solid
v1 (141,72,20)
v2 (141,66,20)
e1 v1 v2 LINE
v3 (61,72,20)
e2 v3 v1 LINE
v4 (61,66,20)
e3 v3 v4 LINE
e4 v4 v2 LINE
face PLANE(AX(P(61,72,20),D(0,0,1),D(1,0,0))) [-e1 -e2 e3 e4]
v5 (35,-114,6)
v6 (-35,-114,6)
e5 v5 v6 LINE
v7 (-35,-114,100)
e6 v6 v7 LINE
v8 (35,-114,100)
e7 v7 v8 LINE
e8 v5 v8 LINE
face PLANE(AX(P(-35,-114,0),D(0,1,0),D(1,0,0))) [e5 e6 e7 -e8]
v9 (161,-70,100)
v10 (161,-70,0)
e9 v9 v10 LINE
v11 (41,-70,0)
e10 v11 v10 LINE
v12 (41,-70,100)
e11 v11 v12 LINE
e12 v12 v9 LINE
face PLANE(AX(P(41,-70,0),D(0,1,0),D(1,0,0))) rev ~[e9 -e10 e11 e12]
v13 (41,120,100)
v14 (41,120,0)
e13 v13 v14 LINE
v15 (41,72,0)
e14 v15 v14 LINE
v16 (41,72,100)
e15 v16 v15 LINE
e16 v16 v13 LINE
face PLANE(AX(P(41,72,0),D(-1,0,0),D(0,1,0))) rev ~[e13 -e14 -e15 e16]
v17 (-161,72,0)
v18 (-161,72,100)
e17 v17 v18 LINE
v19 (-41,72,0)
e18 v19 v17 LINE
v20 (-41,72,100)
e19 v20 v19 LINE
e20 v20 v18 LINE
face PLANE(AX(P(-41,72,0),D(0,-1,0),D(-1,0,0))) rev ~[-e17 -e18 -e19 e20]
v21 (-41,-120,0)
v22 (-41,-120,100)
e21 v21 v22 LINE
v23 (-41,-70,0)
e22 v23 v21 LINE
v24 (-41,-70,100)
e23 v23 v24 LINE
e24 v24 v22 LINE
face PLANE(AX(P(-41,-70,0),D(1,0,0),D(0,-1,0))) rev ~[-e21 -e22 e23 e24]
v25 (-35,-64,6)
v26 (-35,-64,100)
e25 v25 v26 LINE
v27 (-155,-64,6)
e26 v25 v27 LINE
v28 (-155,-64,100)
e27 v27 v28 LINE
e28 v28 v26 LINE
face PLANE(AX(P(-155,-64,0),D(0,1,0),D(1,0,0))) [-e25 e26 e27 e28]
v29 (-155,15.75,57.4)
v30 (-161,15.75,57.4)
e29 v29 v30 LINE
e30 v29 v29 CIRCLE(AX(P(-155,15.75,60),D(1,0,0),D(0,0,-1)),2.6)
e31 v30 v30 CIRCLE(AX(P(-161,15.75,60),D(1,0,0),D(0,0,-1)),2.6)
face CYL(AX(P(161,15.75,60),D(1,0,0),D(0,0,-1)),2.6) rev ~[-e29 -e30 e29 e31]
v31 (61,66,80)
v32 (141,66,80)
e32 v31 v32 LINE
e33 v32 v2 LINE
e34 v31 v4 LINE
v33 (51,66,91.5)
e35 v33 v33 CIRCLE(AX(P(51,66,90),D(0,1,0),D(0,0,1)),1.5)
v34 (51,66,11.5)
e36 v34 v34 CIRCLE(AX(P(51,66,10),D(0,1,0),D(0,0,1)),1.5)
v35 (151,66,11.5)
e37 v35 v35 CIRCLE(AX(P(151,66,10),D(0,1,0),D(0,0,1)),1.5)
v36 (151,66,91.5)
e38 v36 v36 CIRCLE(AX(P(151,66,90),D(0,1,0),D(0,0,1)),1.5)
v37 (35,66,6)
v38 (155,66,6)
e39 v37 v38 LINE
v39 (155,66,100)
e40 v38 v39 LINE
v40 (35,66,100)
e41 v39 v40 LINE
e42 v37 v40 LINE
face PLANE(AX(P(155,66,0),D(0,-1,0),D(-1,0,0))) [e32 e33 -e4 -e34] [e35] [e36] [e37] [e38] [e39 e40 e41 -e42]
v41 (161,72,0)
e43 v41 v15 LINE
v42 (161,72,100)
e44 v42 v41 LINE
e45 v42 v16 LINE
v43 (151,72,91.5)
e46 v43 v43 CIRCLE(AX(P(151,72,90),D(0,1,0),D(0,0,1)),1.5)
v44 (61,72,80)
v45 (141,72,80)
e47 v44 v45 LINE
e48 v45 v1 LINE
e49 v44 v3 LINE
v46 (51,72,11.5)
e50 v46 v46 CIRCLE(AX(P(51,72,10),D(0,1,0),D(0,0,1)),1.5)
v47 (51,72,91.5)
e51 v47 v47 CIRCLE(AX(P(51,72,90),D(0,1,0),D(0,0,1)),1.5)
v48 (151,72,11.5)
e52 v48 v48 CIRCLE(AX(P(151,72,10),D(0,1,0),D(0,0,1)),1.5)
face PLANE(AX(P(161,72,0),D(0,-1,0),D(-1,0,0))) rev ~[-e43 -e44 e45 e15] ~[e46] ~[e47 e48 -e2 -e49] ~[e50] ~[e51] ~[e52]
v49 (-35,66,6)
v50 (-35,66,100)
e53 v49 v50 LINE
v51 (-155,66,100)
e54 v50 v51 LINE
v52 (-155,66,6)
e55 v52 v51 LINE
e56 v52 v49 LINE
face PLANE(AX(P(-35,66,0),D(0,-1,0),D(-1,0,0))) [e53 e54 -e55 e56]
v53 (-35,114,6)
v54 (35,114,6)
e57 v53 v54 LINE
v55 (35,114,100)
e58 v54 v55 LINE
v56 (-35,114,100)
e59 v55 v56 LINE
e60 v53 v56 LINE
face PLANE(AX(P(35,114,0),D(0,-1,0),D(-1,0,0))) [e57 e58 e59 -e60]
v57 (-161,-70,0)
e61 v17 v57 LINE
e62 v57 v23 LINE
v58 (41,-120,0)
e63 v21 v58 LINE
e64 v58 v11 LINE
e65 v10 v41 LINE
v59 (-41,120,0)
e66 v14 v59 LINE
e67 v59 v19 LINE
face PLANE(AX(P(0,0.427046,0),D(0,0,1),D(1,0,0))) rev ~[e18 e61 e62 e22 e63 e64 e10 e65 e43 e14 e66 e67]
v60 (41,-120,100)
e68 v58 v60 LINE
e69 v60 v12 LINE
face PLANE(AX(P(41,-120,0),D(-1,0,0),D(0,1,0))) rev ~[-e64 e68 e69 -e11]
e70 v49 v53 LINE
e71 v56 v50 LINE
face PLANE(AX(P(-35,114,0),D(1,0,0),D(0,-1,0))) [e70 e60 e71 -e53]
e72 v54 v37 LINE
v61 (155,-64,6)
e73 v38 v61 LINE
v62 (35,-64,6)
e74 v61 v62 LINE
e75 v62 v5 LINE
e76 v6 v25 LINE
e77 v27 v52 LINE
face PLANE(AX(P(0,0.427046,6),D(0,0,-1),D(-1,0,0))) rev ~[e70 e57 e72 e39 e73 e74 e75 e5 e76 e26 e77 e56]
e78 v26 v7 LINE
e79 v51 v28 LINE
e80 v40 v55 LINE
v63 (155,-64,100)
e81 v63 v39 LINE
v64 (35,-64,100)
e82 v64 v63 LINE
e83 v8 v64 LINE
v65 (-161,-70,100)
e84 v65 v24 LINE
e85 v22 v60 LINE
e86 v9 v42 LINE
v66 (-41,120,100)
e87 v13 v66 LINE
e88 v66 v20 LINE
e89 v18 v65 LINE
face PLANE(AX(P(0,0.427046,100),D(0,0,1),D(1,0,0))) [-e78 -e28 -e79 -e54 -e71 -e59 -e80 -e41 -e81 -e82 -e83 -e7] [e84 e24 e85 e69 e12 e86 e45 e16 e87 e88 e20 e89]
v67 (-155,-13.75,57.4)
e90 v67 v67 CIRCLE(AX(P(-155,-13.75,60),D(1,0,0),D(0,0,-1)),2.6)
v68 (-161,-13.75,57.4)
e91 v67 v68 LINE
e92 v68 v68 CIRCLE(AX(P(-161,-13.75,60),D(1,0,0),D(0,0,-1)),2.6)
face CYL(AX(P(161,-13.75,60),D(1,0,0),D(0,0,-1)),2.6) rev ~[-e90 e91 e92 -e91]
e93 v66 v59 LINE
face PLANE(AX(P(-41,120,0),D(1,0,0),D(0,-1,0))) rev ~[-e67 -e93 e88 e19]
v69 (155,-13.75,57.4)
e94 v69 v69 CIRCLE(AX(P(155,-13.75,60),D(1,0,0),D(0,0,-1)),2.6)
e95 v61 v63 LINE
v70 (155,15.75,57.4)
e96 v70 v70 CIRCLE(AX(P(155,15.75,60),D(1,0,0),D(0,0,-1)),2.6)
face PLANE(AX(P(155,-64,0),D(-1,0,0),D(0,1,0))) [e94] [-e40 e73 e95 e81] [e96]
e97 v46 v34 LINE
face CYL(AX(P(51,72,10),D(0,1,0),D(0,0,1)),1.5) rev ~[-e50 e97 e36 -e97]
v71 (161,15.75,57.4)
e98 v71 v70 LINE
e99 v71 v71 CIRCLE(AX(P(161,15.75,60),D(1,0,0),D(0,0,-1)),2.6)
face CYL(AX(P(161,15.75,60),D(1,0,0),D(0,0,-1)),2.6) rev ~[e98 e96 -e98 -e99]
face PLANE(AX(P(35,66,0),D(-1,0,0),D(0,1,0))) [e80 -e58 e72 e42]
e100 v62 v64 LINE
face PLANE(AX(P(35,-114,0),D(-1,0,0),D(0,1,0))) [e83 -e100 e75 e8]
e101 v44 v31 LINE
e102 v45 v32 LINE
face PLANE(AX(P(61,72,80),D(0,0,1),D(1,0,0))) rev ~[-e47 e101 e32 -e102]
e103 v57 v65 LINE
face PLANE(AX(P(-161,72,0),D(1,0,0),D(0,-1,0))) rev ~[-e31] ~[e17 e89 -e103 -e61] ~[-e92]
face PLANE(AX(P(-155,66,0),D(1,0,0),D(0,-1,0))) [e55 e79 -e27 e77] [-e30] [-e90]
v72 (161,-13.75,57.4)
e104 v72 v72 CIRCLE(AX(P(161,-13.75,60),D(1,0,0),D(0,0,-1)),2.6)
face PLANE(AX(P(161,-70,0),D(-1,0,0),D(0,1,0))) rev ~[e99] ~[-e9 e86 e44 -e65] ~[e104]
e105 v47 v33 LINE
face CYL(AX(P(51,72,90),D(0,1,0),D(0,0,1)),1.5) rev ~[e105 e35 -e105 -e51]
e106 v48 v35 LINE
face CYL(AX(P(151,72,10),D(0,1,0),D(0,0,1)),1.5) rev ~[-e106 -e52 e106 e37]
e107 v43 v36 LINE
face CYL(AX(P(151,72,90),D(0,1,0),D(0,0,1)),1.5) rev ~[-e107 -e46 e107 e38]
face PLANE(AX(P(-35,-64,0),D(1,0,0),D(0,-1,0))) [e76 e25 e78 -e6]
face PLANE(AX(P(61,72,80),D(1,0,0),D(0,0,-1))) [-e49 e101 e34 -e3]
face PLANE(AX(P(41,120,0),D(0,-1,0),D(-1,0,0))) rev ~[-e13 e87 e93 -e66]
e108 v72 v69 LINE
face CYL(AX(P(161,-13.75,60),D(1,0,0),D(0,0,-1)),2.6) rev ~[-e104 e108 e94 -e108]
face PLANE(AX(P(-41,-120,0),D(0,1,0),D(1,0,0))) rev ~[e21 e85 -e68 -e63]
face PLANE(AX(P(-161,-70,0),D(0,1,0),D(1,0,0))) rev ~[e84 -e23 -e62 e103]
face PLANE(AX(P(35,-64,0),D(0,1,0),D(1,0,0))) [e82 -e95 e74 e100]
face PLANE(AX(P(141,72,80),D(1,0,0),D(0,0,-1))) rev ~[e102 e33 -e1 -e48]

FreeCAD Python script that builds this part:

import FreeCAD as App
import Part
import Sketcher
from FreeCAD import Vector

doc = App.newDocument("Part")
params = doc.addObject("Spreadsheet::Sheet", "Params")
for row, (alias, value) in enumerate([
    ("sketch1_width", "120 mm"),
    ("sketch1_width2", "82 mm"),
    ("sketch1_width3", "70 mm"),
    ("sketch1_height", "142 mm"),
    ("sketch1_height2", "50 mm"),
    ("pad1_length", "100 mm"),
    ("sketch2_width", "82 mm"),
    ("sketch2_width2", "120 mm"),
    ("sketch2_height", "48 mm"),
    ("sketch2_height2", "142 mm"),
    ("sketch2_height3", "50 mm"),
    ("pad2_length", "6 mm"),
    ("sketch3_diameter", "3 mm"),
    ("sketch3_width", "80 mm"),
    ("sketch3_height", "60 mm"),
    ("pocket1_length", "6 mm"),
    ("sketch4_diameter", "5.2 mm"),
], start=1):
    params.set(f"A{row}", alias)
    params.set(f"B{row}", "=" + value)
    params.setAlias(f"B{row}", alias)

body = doc.addObject("PartDesign::Body", "Body")

sketch1 = body.newObject("Sketcher::SketchObject", "Sketch")
sketch1.AttachmentSupport = (doc.getObject("XY_Plane"), [""])
sketch1.MapMode = "FlatFace"
sketch1.addGeometry(Part.LineSegment(Vector(-41, 72, 0), Vector(-161, 72, 0)), False)
sketch1.addGeometry(Part.LineSegment(Vector(-161, 72, 0), Vector(-161, -70, 0)), False)
sketch1.addGeometry(Part.LineSegment(Vector(-161, -70, 0), Vector(-41, -70, 0)), False)
sketch1.addGeometry(Part.LineSegment(Vector(-41, -70, 0), Vector(-41, -120, 0)), False)
sketch1.addGeometry(Part.LineSegment(Vector(-41, -120, 0), Vector(41, -120, 0)), False)
sketch1.addGeometry(Part.LineSegment(Vector(41, -120, 0), Vector(41, -70, 0)), False)
sketch1.addGeometry(Part.LineSegment(Vector(41, -70, 0), Vector(161, -70, 0)), False)
sketch1.addGeometry(Part.LineSegment(Vector(161, -70, 0), Vector(161, 72, 0)), False)
sketch1.addGeometry(Part.LineSegment(Vector(161, 72, 0), Vector(41, 72, 0)), False)
sketch1.addGeometry(Part.LineSegment(Vector(41, 72, 0), Vector(41, 120, 0)), False)
sketch1.addGeometry(Part.LineSegment(Vector(41, 120, 0), Vector(-41, 120, 0)), False)
sketch1.addGeometry(Part.LineSegment(Vector(-41, 120, 0), Vector(-41, 72, 0)), False)
sketch1.addGeometry(Part.LineSegment(Vector(35, 66, 0), Vector(155, 66, 0)), False)
sketch1.addGeometry(Part.LineSegment(Vector(155, 66, 0), Vector(155, -64, 0)), False)
sketch1.addGeometry(Part.LineSegment(Vector(155, -64, 0), Vector(35, -64, 0)), False)
sketch1.addGeometry(Part.LineSegment(Vector(35, -64, 0), Vector(35, -114, 0)), False)
sketch1.addGeometry(Part.LineSegment(Vector(35, -114, 0), Vector(-35, -114, 0)), False)
sketch1.addGeometry(Part.LineSegment(Vector(-35, -114, 0), Vector(-35, -64, 0)), False)
sketch1.addGeometry(Part.LineSegment(Vector(-35, -64, 0), Vector(-155, -64, 0)), False)
sketch1.addGeometry(Part.LineSegment(Vector(-155, -64, 0), Vector(-155, 66, 0)), False)
sketch1.addGeometry(Part.LineSegment(Vector(-155, 66, 0), Vector(-35, 66, 0)), False)
sketch1.addGeometry(Part.LineSegment(Vector(-35, 66, 0), Vector(-35, 114, 0)), False)
sketch1.addGeometry(Part.LineSegment(Vector(-35, 114, 0), Vector(35, 114, 0)), False)
sketch1.addGeometry(Part.LineSegment(Vector(35, 114, 0), Vector(35, 66, 0)), False)
sketch1.addConstraint(Sketcher.Constraint("Coincident", 0, 2, 1, 1))
sketch1.addConstraint(Sketcher.Constraint("Coincident", 1, 2, 2, 1))
sketch1.addConstraint(Sketcher.Constraint("Coincident", 2, 2, 3, 1))
sketch1.addConstraint(Sketcher.Constraint("Coincident", 3, 2, 4, 1))
sketch1.addConstraint(Sketcher.Constraint("Coincident", 4, 2, 5, 1))
sketch1.addConstraint(Sketcher.Constraint("Coincident", 5, 2, 6, 1))
sketch1.addConstraint(Sketcher.Constraint("Coincident", 6, 2, 7, 1))
sketch1.addConstraint(Sketcher.Constraint("Coincident", 7, 2, 8, 1))
sketch1.addConstraint(Sketcher.Constraint("Coincident", 8, 2, 9, 1))
sketch1.addConstraint(Sketcher.Constraint("Coincident", 9, 2, 10, 1))
sketch1.addConstraint(Sketcher.Constraint("Coincident", 10, 2, 11, 1))
sketch1.addConstraint(Sketcher.Constraint("Coincident", 11, 2, 0, 1))
sketch1.addConstraint(Sketcher.Constraint("Coincident", 12, 2, 13, 1))
sketch1.addConstraint(Sketcher.Constraint("Coincident", 13, 2, 14, 1))
sketch1.addConstraint(Sketcher.Constraint("Coincident", 14, 2, 15, 1))
sketch1.addConstraint(Sketcher.Constraint("Coincident", 15, 2, 16, 1))
sketch1.addConstraint(Sketcher.Constraint("Coincident", 16, 2, 17, 1))
sketch1.addConstraint(Sketcher.Constraint("Coincident", 17, 2, 18, 1))
sketch1.addConstraint(Sketcher.Constraint("Coincident", 18, 2, 19, 1))
sketch1.addConstraint(Sketcher.Constraint("Coincident", 19, 2, 20, 1))
sketch1.addConstraint(Sketcher.Constraint("Coincident", 20, 2, 21, 1))
sketch1.addConstraint(Sketcher.Constraint("Coincident", 21, 2, 22, 1))
sketch1.addConstraint(Sketcher.Constraint("Coincident", 22, 2, 23, 1))
sketch1.addConstraint(Sketcher.Constraint("Coincident", 23, 2, 12, 1))
sketch1.addConstraint(Sketcher.Constraint("Horizontal", 0))
sketch1.addConstraint(Sketcher.Constraint("Vertical", 1))
sketch1.addConstraint(Sketcher.Constraint("Horizontal", 2))
sketch1.addConstraint(Sketcher.Constraint("Vertical", 3))
sketch1.addConstraint(Sketcher.Constraint("Horizontal", 4))
sketch1.addConstraint(Sketcher.Constraint("Vertical", 5))
sketch1.addConstraint(Sketcher.Constraint("Horizontal", 6))
sketch1.addConstraint(Sketcher.Constraint("Vertical", 7))
sketch1.addConstraint(Sketcher.Constraint("Horizontal", 8))
sketch1.addConstraint(Sketcher.Constraint("Vertical", 9))
sketch1.addConstraint(Sketcher.Constraint("Horizontal", 10))
sketch1.addConstraint(Sketcher.Constraint("Vertical", 11))
sketch1.addConstraint(Sketcher.Constraint("Horizontal", 12))
sketch1.addConstraint(Sketcher.Constraint("Vertical", 13))
sketch1.addConstraint(Sketcher.Constraint("Horizontal", 14))
sketch1.addConstraint(Sketcher.Constraint("Vertical", 15))
sketch1.addConstraint(Sketcher.Constraint("Horizontal", 16))
sketch1.addConstraint(Sketcher.Constraint("Vertical", 17))
sketch1.addConstraint(Sketcher.Constraint("Horizontal", 18))
sketch1.addConstraint(Sketcher.Constraint("Vertical", 19))
sketch1.addConstraint(Sketcher.Constraint("Horizontal", 20))
sketch1.addConstraint(Sketcher.Constraint("Vertical", 21))
sketch1.addConstraint(Sketcher.Constraint("Horizontal", 22))
sketch1.addConstraint(Sketcher.Constraint("Vertical", 23))
sketch1.addConstraint(Sketcher.Constraint("Symmetric", 3, 2, 9, 2, -1, 1))
sketch1.addConstraint(Sketcher.Constraint("Symmetric", 15, 2, 21, 2, -1, 1))
sketch1.addConstraint(Sketcher.Constraint("Symmetric", 2, 2, 5, 2, -2))
sketch1.addConstraint(Sketcher.Constraint("Symmetric", 0, 2, 7, 2, -2))
sketch1.addConstraint(Sketcher.Constraint("Symmetric", 14, 2, 17, 2, -2))
sketch1.addConstraint(Sketcher.Constraint("Symmetric", 12, 2, 19, 2, -2))
sketch1.addConstraint(Sketcher.Constraint("Vertical", 3, 2, 10, 2))
sketch1.addConstraint(Sketcher.Constraint("Vertical", 15, 2, 22, 2))
sketch1.addConstraint(Sketcher.Constraint("Equal", 8, 12))
sketch1.addConstraint(Sketcher.Constraint("Equal", 5, 15))
sketch1.addConstraint(Sketcher.Constraint("Equal", 11, 21))
sketch1.addConstraint(Sketcher.Constraint("DistanceX", 0, 2, 0, 1, 120.0))
sketch1.addConstraint(Sketcher.Constraint("DistanceX", 4, 1, 4, 2, 82.0))
sketch1.addConstraint(Sketcher.Constraint("DistanceX", 16, 2, 16, 1, 70.0))
sketch1.addConstraint(Sketcher.Constraint("DistanceY", 1, 2, 1, 1, 142.0))
sketch1.addConstraint(Sketcher.Constraint("DistanceY", 3, 2, 3, 1, 50.0))
sketch1.addConstraint(Sketcher.Constraint("DistanceY", 9, 1, 9, 2, 48.0))
sketch1.addConstraint(Sketcher.Constraint("DistanceY", 13, 2, 13, 1, 130.0))
sketch1.setExpression("Constraints[59]", "Params.sketch1_width")
sketch1.setExpression("Constraints[60]", "Params.sketch1_width2")
sketch1.setExpression("Constraints[61]", "Params.sketch1_width3")
sketch1.setExpression("Constraints[62]", "Params.sketch1_height")
sketch1.setExpression("Constraints[63]", "Params.sketch1_height2")
pad1 = body.newObject("PartDesign::Pad", "Pad")
pad1.Profile = sketch1
pad1.setExpression("Length", "Params.pad1_length")

sketch2 = body.newObject("Sketcher::SketchObject", "Sketch001")
sketch2.AttachmentSupport = (doc.getObject("XY_Plane"), [""])
sketch2.MapMode = "FlatFace"
sketch2.addGeometry(Part.LineSegment(Vector(-41, 72, 0), Vector(-41, 120, 0)), False)
sketch2.addGeometry(Part.LineSegment(Vector(-41, 120, 0), Vector(41, 120, 0)), False)
sketch2.addGeometry(Part.LineSegment(Vector(41, 120, 0), Vector(41, 72, 0)), False)
sketch2.addGeometry(Part.LineSegment(Vector(41, 72, 0), Vector(161, 72, 0)), False)
sketch2.addGeometry(Part.LineSegment(Vector(161, 72, 0), Vector(161, -70, 0)), False)
sketch2.addGeometry(Part.LineSegment(Vector(161, -70, 0), Vector(41, -70, 0)), False)
sketch2.addGeometry(Part.LineSegment(Vector(41, -70, 0), Vector(41, -120, 0)), False)
sketch2.addGeometry(Part.LineSegment(Vector(41, -120, 0), Vector(-41, -120, 0)), False)
sketch2.addGeometry(Part.LineSegment(Vector(-41, -120, 0), Vector(-41, -70, 0)), False)
sketch2.addGeometry(Part.LineSegment(Vector(-41, -70, 0), Vector(-161, -70, 0)), False)
sketch2.addGeometry(Part.LineSegment(Vector(-161, -70, 0), Vector(-161, 72, 0)), False)
sketch2.addGeometry(Part.LineSegment(Vector(-161, 72, 0), Vector(-41, 72, 0)), False)
sketch2.addConstraint(Sketcher.Constraint("Coincident", 0, 2, 1, 1))
sketch2.addConstraint(Sketcher.Constraint("Coincident", 1, 2, 2, 1))
sketch2.addConstraint(Sketcher.Constraint("Coincident", 2, 2, 3, 1))
sketch2.addConstraint(Sketcher.Constraint("Coincident", 3, 2, 4, 1))
sketch2.addConstraint(Sketcher.Constraint("Coincident", 4, 2, 5, 1))
sketch2.addConstraint(Sketcher.Constraint("Coincident", 5, 2, 6, 1))
sketch2.addConstraint(Sketcher.Constraint("Coincident", 6, 2, 7, 1))
sketch2.addConstraint(Sketcher.Constraint("Coincident", 7, 2, 8, 1))
sketch2.addConstraint(Sketcher.Constraint("Coincident", 8, 2, 9, 1))
sketch2.addConstraint(Sketcher.Constraint("Coincident", 9, 2, 10, 1))
sketch2.addConstraint(Sketcher.Constraint("Coincident", 10, 2, 11, 1))
sketch2.addConstraint(Sketcher.Constraint("Coincident", 11, 2, 0, 1))
sketch2.addConstraint(Sketcher.Constraint("Vertical", 0))
sketch2.addConstraint(Sketcher.Constraint("Horizontal", 1))
sketch2.addConstraint(Sketcher.Constraint("Vertical", 2))
sketch2.addConstraint(Sketcher.Constraint("Horizontal", 3))
sketch2.addConstraint(Sketcher.Constraint("Vertical", 4))
sketch2.addConstraint(Sketcher.Constraint("Horizontal", 5))
sketch2.addConstraint(Sketcher.Constraint("Vertical", 6))
sketch2.addConstraint(Sketcher.Constraint("Horizontal", 7))
sketch2.addConstraint(Sketcher.Constraint("Vertical", 8))
sketch2.addConstraint(Sketcher.Constraint("Horizontal", 9))
sketch2.addConstraint(Sketcher.Constraint("Vertical", 10))
sketch2.addConstraint(Sketcher.Constraint("Horizontal", 11))
sketch2.addConstraint(Sketcher.Constraint("Symmetric", 0, 2, 6, 2, -1, 1))
sketch2.addConstraint(Sketcher.Constraint("Symmetric", 5, 2, 8, 2, -2))
sketch2.addConstraint(Sketcher.Constraint("Symmetric", 3, 2, 10, 2, -2))
sketch2.addConstraint(Sketcher.Constraint("Vertical", 2, 2, 5, 2))
sketch2.addConstraint(Sketcher.Constraint("DistanceX", 1, 1, 1, 2, 82.0))
sketch2.addConstraint(Sketcher.Constraint("DistanceX", 3, 1, 3, 2, 120.0))
sketch2.addConstraint(Sketcher.Constraint("DistanceY", 0, 1, 0, 2, 48.0))
sketch2.addConstraint(Sketcher.Constraint("DistanceY", 4, 2, 4, 1, 142.0))
sketch2.addConstraint(Sketcher.Constraint("DistanceY", 6, 2, 6, 1, 50.0))
sketch2.setExpression("Constraints[28]", "Params.sketch2_width")
sketch2.setExpression("Constraints[29]", "Params.sketch2_width2")
sketch2.setExpression("Constraints[30]", "Params.sketch2_height")
sketch2.setExpression("Constraints[31]", "Params.sketch2_height2")
sketch2.setExpression("Constraints[32]", "Params.sketch2_height3")
pad2 = body.newObject("PartDesign::Pad", "Pad001")
pad2.Profile = sketch2
pad2.setExpression("Length", "Params.pad2_length")

sketch3 = body.newObject("Sketcher::SketchObject", "Sketch002")
sketch3.AttachmentSupport = (doc.getObject("XZ_Plane"), [""])
sketch3.MapMode = "FlatFace"
sketch3.AttachmentOffset = App.Placement(Vector(0, 0, -72), App.Rotation())
sketch3.addGeometry(Part.Circle(Vector(151, 90, 0), Vector(0, 0, 1), 1.5), False)
sketch3.addGeometry(Part.Circle(Vector(51, 90, 0), Vector(0, 0, 1), 1.5), False)
sketch3.addGeometry(Part.Circle(Vector(51, 10, 0), Vector(0, 0, 1), 1.5), False)
sketch3.addGeometry(Part.Circle(Vector(151, 10, 0), Vector(0, 0, 1), 1.5), False)
sketch3.addGeometry(Part.LineSegment(Vector(61, 20, 0), Vector(61, 80, 0)), False)
sketch3.addGeometry(Part.LineSegment(Vector(61, 80, 0), Vector(141, 80, 0)), False)
sketch3.addGeometry(Part.LineSegment(Vector(141, 80, 0), Vector(141, 20, 0)), False)
sketch3.addGeometry(Part.LineSegment(Vector(141, 20, 0), Vector(61, 20, 0)), False)
sketch3.addConstraint(Sketcher.Constraint("Coincident", 4, 2, 5, 1))
sketch3.addConstraint(Sketcher.Constraint("Coincident", 5, 2, 6, 1))
sketch3.addConstraint(Sketcher.Constraint("Coincident", 6, 2, 7, 1))
sketch3.addConstraint(Sketcher.Constraint("Coincident", 7, 2, 4, 1))
sketch3.addConstraint(Sketcher.Constraint("Vertical", 4))
sketch3.addConstraint(Sketcher.Constraint("Horizontal", 5))
sketch3.addConstraint(Sketcher.Constraint("Vertical", 6))
sketch3.addConstraint(Sketcher.Constraint("Horizontal", 7))
sketch3.addConstraint(Sketcher.Constraint("Equal", 0, 1))
sketch3.addConstraint(Sketcher.Constraint("Equal", 1, 2))
sketch3.addConstraint(Sketcher.Constraint("Equal", 2, 3))
sketch3.addConstraint(Sketcher.Constraint("Horizontal", 0, 3, 1, 3))
sketch3.addConstraint(Sketcher.Constraint("Horizontal", 2, 3, 3, 3))
sketch3.addConstraint(Sketcher.Constraint("Vertical", 1, 3, 2, 3))
sketch3.addConstraint(Sketcher.Constraint("Vertical", 0, 3, 3, 3))
sketch3.addConstraint(Sketcher.Constraint("Diameter", 0, 3.0))
sketch3.addConstraint(Sketcher.Constraint("DistanceX", 5, 1, 5, 2, 80.0))
sketch3.addConstraint(Sketcher.Constraint("DistanceY", 4, 1, 4, 2, 60.0))
sketch3.addConstraint(Sketcher.Constraint("DistanceX", -1, 1, 0, 3, 151.0))
sketch3.addConstraint(Sketcher.Constraint("DistanceY", -1, 1, 0, 3, 90.0))
sketch3.addConstraint(Sketcher.Constraint("DistanceX", -1, 1, 1, 3, 51.0))
sketch3.addConstraint(Sketcher.Constraint("DistanceY", -1, 1, 2, 3, 10.0))
sketch3.addConstraint(Sketcher.Constraint("DistanceX", -1, 1, 4, 2, 61.0))
sketch3.addConstraint(Sketcher.Constraint("DistanceY", -1, 1, 4, 2, 80.0))
sketch3.setExpression("Constraints[15]", "Params.sketch3_diameter")
sketch3.setExpression("Constraints[16]", "Params.sketch3_width")
sketch3.setExpression("Constraints[17]", "Params.sketch3_height")
pocket1 = body.newObject("PartDesign::Pocket", "Pocket")
pocket1.Profile = sketch3
pocket1.setExpression("Length", "Params.pocket1_length")
pocket1.Reversed = True

sketch4 = body.newObject("Sketcher::SketchObject", "Sketch003")
sketch4.AttachmentSupport = (doc.getObject("YZ_Plane"), [""])
sketch4.MapMode = "FlatFace"
sketch4.AttachmentOffset = App.Placement(Vector(0, 0, 161), App.Rotation())
sketch4.addGeometry(Part.Circle(Vector(-13.8, 60, 0), Vector(0, 0, 1), 2.6), False)
sketch4.addGeometry(Part.Circle(Vector(15.8, 60, 0), Vector(0, 0, 1), 2.6), False)
sketch4.addConstraint(Sketcher.Constraint("Equal", 0, 1))
sketch4.addConstraint(Sketcher.Constraint("Horizontal", 0, 3, 1, 3))
sketch4.addConstraint(Sketcher.Constraint("Diameter", 0, 5.2))
sketch4.addConstraint(Sketcher.Constraint("DistanceY", -1, 1, 0, 3, 60.0))
sketch4.addConstraint(Sketcher.Constraint("DistanceX", 0, 3, 1, 3, 29.5))
sketch4.addConstraint(Sketcher.Constraint("DistanceX", 0, 3, -1, 1, 13.75))
sketch4.setExpression("Constraints[2]", "Params.sketch4_diameter")
pocket2 = body.newObject("PartDesign::Pocket", "Pocket001")
pocket2.Profile = sketch4
pocket2.Type = "ThroughAll"

doc.recompute()
